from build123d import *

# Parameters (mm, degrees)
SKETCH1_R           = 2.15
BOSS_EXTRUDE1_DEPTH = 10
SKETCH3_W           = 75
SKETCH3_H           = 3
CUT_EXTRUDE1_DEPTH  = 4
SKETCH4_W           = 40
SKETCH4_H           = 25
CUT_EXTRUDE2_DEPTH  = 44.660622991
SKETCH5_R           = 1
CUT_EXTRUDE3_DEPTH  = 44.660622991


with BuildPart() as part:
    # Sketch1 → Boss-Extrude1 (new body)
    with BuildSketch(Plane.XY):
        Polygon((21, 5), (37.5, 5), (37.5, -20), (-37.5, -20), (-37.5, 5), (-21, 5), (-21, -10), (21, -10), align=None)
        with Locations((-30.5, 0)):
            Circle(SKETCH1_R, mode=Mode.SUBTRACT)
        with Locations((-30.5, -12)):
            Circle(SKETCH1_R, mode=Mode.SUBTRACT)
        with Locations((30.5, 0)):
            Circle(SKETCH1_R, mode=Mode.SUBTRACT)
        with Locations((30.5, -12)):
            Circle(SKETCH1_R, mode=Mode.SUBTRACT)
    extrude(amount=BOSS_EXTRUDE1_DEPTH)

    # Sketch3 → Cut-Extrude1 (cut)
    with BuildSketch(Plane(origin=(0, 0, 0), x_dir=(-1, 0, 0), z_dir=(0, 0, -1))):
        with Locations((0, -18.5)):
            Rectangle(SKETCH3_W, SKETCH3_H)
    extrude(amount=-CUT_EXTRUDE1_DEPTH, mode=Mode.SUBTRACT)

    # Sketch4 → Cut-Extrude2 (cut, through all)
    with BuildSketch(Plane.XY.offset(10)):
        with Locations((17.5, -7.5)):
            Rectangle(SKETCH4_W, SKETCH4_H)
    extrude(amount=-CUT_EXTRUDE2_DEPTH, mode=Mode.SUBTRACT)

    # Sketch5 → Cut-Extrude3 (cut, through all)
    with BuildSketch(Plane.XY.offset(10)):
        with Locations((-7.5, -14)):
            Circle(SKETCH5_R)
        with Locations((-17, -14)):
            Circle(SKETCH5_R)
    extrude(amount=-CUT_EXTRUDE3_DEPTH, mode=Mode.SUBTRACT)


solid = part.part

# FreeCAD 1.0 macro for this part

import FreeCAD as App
import Part
import Sketcher

V = App.Vector


def add_polygon(sketch, points):
    """Adds a closed chain of lines whose ends are joined by coincident constraints."""
    first, n = sketch.GeometryCount, len(points)
    for a, b in zip(points, points[1:] + points[:1]):
        sketch.addGeometry(Part.LineSegment(App.Vector(*a, 0), App.Vector(*b, 0)), False)
    for i in range(n):
        sketch.addConstraint(Sketcher.Constraint("Coincident", first + i, 2, first + (i + 1) % n, 1))

doc = App.newDocument("Part")
body = doc.addObject("PartDesign::Body", "Body")

sketch1 = body.newObject("Sketcher::SketchObject", "Sketch")
sketch1.AttachmentSupport = (doc.getObject("XY_Plane"), [""])
sketch1.MapMode = "FlatFace"
add_polygon(sketch1, [(37.5, 5), (21, 5), (21, -10), (-21, -10), (-21, 5), (-37.5, 5), (-37.5, -20), (37.5, -20)])
sketch1.addGeometry(Part.Circle(V(30.5, -12, 0), V(0, 0, 1), 2.1), False)
sketch1.addGeometry(Part.Circle(V(-30.5, -12, 0), V(0, 0, 1), 2.1), False)
sketch1.addGeometry(Part.Circle(V(30.5, 0, 0), V(0, 0, 1), 2.1), False)
sketch1.addGeometry(Part.Circle(V(-30.5, 0, 0), V(0, 0, 1), 2.1), False)
sketch1.addConstraint(Sketcher.Constraint("Horizontal", 0))
sketch1.addConstraint(Sketcher.Constraint("Vertical", 1))
sketch1.addConstraint(Sketcher.Constraint("Horizontal", 2))
sketch1.addConstraint(Sketcher.Constraint("Vertical", 3))
sketch1.addConstraint(Sketcher.Constraint("Horizontal", 4))
sketch1.addConstraint(Sketcher.Constraint("Vertical", 5))
sketch1.addConstraint(Sketcher.Constraint("Horizontal", 6))
sketch1.addConstraint(Sketcher.Constraint("Vertical", 7))
sketch1.addConstraint(Sketcher.Constraint("Equal", 8, 9))
sketch1.addConstraint(Sketcher.Constraint("Equal", 9, 10))
sketch1.addConstraint(Sketcher.Constraint("Equal", 10, 11))
sketch1.addConstraint(Sketcher.Constraint("Symmetric", 10, 3, 11, 3, -1, 1))
sketch1.addConstraint(Sketcher.Constraint("Symmetric", 8, 3, 9, 3, -2))
sketch1.addConstraint(Sketcher.Constraint("Symmetric", 0, 2, 3, 2, -2))
sketch1.addConstraint(Sketcher.Constraint("PointOnObject", 10, 3, -1))
sketch1.addConstraint(Sketcher.Constraint("Vertical", 8, 3, 10, 3))
sketch1.addConstraint(Sketcher.Constraint("Equal", 0, 4))
sketch1.addConstraint(Sketcher.Constraint("Diameter", 8, 4.3))
sketch1.addConstraint(Sketcher.Constraint("DistanceX", 2, 2, 2, 1, 42.0))
sketch1.addConstraint(Sketcher.Constraint("DistanceX", 6, 1, 6, 2, 75.0))
sketch1.addConstraint(Sketcher.Constraint("DistanceY", 1, 2, 1, 1, 15.0))
sketch1.addConstraint(Sketcher.Constraint("DistanceY", 5, 2, 5, 1, 25.0))
sketch1.addConstraint(Sketcher.Constraint("DistanceY", 8, 3, -1, 1, 12.0))
sketch1.addConstraint(Sketcher.Constraint("DistanceY", -1, 1, 0, 2, 5.0))
sketch1.addConstraint(Sketcher.Constraint("DistanceX", 9, 3, 8, 3, 61.0))
pad1 = body.newObject("PartDesign::Pad", "Pad")
pad1.Profile = sketch1
pad1.Length = 10

sketch2 = body.newObject("Sketcher::SketchObject", "Sketch001")
sketch2.AttachmentSupport = (doc.getObject("XY_Plane"), [""])
sketch2.MapMode = "FlatFace"
add_polygon(sketch2, [(37.5, -17), (37.5, -20), (-37.5, -20), (-37.5, -17)])
sketch2.addConstraint(Sketcher.Constraint("Vertical", 0))
sketch2.addConstraint(Sketcher.Constraint("Horizontal", 1))
sketch2.addConstraint(Sketcher.Constraint("Vertical", 2))
sketch2.addConstraint(Sketcher.Constraint("Horizontal", 3))
sketch2.addConstraint(Sketcher.Constraint("DistanceX", 1, 2, 1, 1, 75.0))
sketch2.addConstraint(Sketcher.Constraint("DistanceY", 0, 2, 0, 1, 3.0))
sketch2.addConstraint(Sketcher.Constraint("DistanceY", 0, 2, -1, 1, 20.0))
sketch2.addConstraint(Sketcher.Constraint("DistanceX", -1, 1, 0, 2, 37.5))
pocket1 = body.newObject("PartDesign::Pocket", "Pocket")
pocket1.Profile = sketch2
pocket1.Length = 4
pocket1.Reversed = True

sketch3 = body.newObject("Sketcher::SketchObject", "Sketch002")
sketch3.AttachmentSupport = (doc.getObject("XY_Plane"), [""])
sketch3.MapMode = "FlatFace"
sketch3.AttachmentOffset = App.Placement(V(0, 0, 10), App.Rotation())
add_polygon(sketch3, [(-2, 5), (-2, -20), (38, -20), (38, 5)])
sketch3.addConstraint(Sketcher.Constraint("Vertical", 0))
sketch3.addConstraint(Sketcher.Constraint("Horizontal", 1))
sketch3.addConstraint(Sketcher.Constraint("Vertical", 2))
sketch3.addConstraint(Sketcher.Constraint("Horizontal", 3))
sketch3.addConstraint(Sketcher.Constraint("DistanceX", 1, 1, 1, 2, 40.0))
sketch3.addConstraint(Sketcher.Constraint("DistanceY", 0, 2, 0, 1, 25.0))
sketch3.addConstraint(Sketcher.Constraint("DistanceY", 0, 2, -1, 1, 20.0))
sketch3.addConstraint(Sketcher.Constraint("DistanceX", 0, 2, -1, 1, 2.5))
pocket2 = body.newObject("PartDesign::Pocket", "Pocket001")
pocket2.Profile = sketch3
pocket2.Type = "ThroughAll"

sketch4 = body.newObject("Sketcher::SketchObject", "Sketch003")
sketch4.AttachmentSupport = (doc.getObject("XY_Plane"), [""])
sketch4.MapMode = "FlatFace"
sketch4.AttachmentOffset = App.Placement(V(0, 0, 10), App.Rotation())
sketch4.addGeometry(Part.Circle(V(-7.5, -14, 0), V(0, 0, 1), 1), False)
sketch4.addGeometry(Part.Circle(V(-17, -14, 0), V(0, 0, 1), 1), False)
sketch4.addConstraint(Sketcher.Constraint("Equal", 0, 1))
sketch4.addConstraint(Sketcher.Constraint("Horizontal", 0, 3, 1, 3))
sketch4.addConstraint(Sketcher.Constraint("Diameter", 0, 2.0))
sketch4.addConstraint(Sketcher.Constraint("DistanceY", 0, 3, -1, 1, 14.0))
sketch4.addConstraint(Sketcher.Constraint("DistanceX", 1, 3, -1, 1, 17.0))
sketch4.addConstraint(Sketcher.Constraint("DistanceX", 0, 3, -1, 1, 7.5))
pocket3 = body.newObject("PartDesign::Pocket", "Pocket002")
pocket3.Profile = sketch4
pocket3.Type = "ThroughAll"

doc.recompute()
